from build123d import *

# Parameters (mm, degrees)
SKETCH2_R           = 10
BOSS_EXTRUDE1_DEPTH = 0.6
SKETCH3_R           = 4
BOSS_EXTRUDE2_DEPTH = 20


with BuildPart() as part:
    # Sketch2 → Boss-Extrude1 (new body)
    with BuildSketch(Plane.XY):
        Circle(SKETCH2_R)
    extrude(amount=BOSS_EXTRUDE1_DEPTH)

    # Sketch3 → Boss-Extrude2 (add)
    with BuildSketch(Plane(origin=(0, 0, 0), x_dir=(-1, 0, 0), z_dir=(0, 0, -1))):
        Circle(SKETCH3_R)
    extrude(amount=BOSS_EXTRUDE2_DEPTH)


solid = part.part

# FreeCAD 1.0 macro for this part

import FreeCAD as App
import Part
import Sketcher
Q = App.Units.Quantity

doc = App.newDocument("Part")
body = doc.addObject("PartDesign::Body", "Body")

# Sketch on XY plane
sketch1 = doc.addObject("Sketcher::SketchObject", "Sketch")
body.addObject(sketch1)
sketch1.AttachmentSupport = (doc.XY_Plane, [""])
sketch1.MapMode = "FlatFace"
sketch1.addGeometry(Part.Circle(App.Vector(0, 0, 0), App.Vector(0, 0, 1), 10), False)
sketch1.addConstraint([
    Sketcher.Constraint("Coincident", 0, 3, -1, 1),
    Sketcher.Constraint("Diameter", 0, Q("20 mm")),
])
pad1 = doc.addObject("PartDesign::Pad", "Pad")
body.addObject(pad1)
pad1.Profile = sketch1
pad1.Length = 0.6

# Sketch on XY plane
sketch2 = doc.addObject("Sketcher::SketchObject", "Sketch001")
body.addObject(sketch2)
sketch2.AttachmentSupport = (doc.XY_Plane, [""])
sketch2.MapMode = "FlatFace"
sketch2.addGeometry(Part.Circle(App.Vector(0, 0, 0), App.Vector(0, 0, 1), 4), False)
sketch2.addConstraint([
    Sketcher.Constraint("Coincident", 0, 3, -1, 1),
    Sketcher.Constraint("Diameter", 0, Q("8 mm")),
])
pad2 = doc.addObject("PartDesign::Pad", "Pad001")
body.addObject(pad2)
pad2.Profile = sketch2
pad2.Length = 20
pad2.Reversed = True

doc.recompute()
